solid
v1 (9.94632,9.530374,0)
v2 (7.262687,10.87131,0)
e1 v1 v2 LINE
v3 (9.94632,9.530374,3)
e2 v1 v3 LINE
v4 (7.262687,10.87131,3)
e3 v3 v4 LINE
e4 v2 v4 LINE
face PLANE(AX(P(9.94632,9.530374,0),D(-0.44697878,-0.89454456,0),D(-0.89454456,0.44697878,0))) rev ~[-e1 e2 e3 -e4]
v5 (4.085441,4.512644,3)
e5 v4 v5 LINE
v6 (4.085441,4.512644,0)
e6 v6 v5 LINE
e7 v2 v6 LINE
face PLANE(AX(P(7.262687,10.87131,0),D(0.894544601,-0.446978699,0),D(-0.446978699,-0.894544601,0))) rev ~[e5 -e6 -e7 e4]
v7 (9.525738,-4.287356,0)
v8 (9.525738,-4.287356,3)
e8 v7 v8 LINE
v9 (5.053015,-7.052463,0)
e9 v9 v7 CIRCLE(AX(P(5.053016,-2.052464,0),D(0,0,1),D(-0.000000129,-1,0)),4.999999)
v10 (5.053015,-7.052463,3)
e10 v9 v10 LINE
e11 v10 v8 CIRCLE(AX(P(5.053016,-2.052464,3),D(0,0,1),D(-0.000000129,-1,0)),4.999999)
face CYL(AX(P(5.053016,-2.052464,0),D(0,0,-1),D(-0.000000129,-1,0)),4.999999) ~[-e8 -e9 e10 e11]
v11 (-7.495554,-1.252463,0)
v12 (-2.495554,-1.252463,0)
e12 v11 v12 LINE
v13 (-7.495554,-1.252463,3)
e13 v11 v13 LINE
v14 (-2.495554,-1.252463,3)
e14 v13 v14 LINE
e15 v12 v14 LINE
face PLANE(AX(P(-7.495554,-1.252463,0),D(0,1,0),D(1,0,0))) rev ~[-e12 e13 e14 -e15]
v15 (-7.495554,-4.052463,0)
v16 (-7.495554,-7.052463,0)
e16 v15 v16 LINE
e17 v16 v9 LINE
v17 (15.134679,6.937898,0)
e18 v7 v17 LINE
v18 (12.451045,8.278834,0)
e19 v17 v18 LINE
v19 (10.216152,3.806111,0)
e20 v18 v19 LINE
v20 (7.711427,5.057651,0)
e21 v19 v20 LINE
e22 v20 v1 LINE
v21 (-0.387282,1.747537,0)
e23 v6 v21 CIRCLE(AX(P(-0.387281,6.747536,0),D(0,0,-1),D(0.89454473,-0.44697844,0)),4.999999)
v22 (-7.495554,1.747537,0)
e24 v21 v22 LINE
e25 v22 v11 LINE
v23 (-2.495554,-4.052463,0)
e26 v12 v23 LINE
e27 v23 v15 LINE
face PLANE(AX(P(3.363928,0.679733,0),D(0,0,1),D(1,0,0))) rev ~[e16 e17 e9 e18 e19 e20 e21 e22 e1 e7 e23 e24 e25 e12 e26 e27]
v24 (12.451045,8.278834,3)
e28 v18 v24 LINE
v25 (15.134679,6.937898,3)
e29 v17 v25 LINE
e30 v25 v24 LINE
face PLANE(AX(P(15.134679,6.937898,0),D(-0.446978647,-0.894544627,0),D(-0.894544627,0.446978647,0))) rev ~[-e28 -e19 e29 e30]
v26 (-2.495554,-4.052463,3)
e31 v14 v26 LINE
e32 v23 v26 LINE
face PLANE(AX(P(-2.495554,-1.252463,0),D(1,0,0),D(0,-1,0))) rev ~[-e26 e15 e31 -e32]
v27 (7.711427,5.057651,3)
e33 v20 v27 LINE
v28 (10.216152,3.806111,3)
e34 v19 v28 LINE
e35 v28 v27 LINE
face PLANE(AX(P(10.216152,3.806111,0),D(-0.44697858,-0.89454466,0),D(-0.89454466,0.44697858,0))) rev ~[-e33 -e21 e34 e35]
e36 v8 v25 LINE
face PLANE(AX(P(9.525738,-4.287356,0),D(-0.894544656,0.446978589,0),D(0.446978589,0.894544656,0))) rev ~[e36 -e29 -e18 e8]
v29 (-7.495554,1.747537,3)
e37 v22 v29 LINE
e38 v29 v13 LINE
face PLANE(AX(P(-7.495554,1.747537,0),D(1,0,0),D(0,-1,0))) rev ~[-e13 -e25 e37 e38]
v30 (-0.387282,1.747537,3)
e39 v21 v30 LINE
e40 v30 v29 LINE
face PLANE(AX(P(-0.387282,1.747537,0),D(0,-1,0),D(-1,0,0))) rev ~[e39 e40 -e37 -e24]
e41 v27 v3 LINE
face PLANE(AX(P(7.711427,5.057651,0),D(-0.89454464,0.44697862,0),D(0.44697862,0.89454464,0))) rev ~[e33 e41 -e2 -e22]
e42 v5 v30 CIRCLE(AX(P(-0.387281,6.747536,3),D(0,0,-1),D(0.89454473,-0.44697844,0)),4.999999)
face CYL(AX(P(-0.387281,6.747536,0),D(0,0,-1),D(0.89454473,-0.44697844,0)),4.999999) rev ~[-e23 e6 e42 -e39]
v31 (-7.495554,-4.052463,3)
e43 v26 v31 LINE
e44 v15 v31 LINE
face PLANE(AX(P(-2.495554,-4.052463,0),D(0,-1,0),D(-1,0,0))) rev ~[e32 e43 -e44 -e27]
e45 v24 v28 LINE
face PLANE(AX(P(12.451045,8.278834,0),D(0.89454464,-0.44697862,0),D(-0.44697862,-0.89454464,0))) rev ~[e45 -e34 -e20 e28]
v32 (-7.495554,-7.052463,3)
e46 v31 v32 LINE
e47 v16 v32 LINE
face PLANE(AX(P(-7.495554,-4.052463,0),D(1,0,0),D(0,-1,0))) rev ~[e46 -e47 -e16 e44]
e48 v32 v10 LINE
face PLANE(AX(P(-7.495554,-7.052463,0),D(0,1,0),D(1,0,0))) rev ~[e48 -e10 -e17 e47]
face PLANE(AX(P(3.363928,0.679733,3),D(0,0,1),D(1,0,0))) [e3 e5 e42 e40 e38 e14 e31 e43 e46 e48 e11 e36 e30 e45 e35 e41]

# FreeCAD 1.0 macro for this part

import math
import FreeCAD as App
import Part
import Sketcher
Q = App.Units.Quantity

doc = App.newDocument("Part")
params = doc.addObject("Spreadsheet::Sheet", "Params")
for row, (alias, value) in enumerate([
    ("sketch1_radius", "4.999999 mm"),
    ("sketch1_width", "5 mm"),
    ("sketch1_height", "3 mm"),
    ("sketch1_length", "3 mm"),
    ("sketch1_length2", "5 mm"),
    ("pad1_length", "3 mm"),
], start=1):
    params.set(f"A{row}", alias)
    params.set(f"B{row}", "=" + value)
    params.setAlias(f"B{row}", alias)

body = doc.addObject("PartDesign::Body", "Body")

# Sketch on XY plane
sketch1 = body.newObject("Sketcher::SketchObject", "Sketch")
sketch1.AttachmentSupport = (doc.getObject("XY_Plane"), [""])
sketch1.MapMode = "FlatFace"
sketch1.addGeometry([
    Part.LineSegment(App.Vector(-7.495554, -1.252463, 0), App.Vector(-2.495554, -1.252463, 0)),  # 0
    Part.LineSegment(App.Vector(-2.495554, -1.252463, 0), App.Vector(-2.495554, -4.052463, 0)),  # 1
    Part.LineSegment(App.Vector(-2.495554, -4.052463, 0), App.Vector(-7.495554, -4.052463, 0)),  # 2
    Part.LineSegment(App.Vector(-7.495554, -4.052463, 0), App.Vector(-7.495554, -7.052463, 0)),  # 3
    Part.LineSegment(App.Vector(-7.495554, -7.052463, 0), App.Vector(5.053015, -7.052463, 0)),  # 4
    Part.ArcOfCircle(Part.Circle(App.Vector(5.053016, -2.052464, 0), App.Vector(0, 0, 1), 4.999999), math.radians(-90.000007), math.radians(-26.549988)),  # 5
    Part.LineSegment(App.Vector(9.525738, -4.287356, 0), App.Vector(15.134679, 6.937898, 0)),  # 6
    Part.LineSegment(App.Vector(15.134679, 6.937898, 0), App.Vector(12.451045, 8.278834, 0)),  # 7
    Part.LineSegment(App.Vector(12.451045, 8.278834, 0), App.Vector(10.216152, 3.806111, 0)),  # 8
    Part.LineSegment(App.Vector(10.216152, 3.806111, 0), App.Vector(7.711427, 5.057651, 0)),  # 9
    Part.LineSegment(App.Vector(7.711427, 5.057651, 0), App.Vector(9.94632, 9.530374, 0)),  # 10
    Part.LineSegment(App.Vector(9.94632, 9.530374, 0), App.Vector(7.262687, 10.87131, 0)),  # 11
    Part.LineSegment(App.Vector(7.262687, 10.87131, 0), App.Vector(4.085441, 4.512644, 0)),  # 12
    Part.ArcOfCircle(Part.Circle(App.Vector(-0.387281, 6.747536, 0), App.Vector(0, 0, 1), 4.999999), math.radians(-90.000007), math.radians(-26.549988)),  # 13
    Part.LineSegment(App.Vector(-0.387282, 1.747537, 0), App.Vector(-7.495554, 1.747537, 0)),  # 14
    Part.LineSegment(App.Vector(-7.495554, 1.747537, 0), App.Vector(-7.495554, -1.252463, 0)),  # 15
], False)
sketch1.addConstraint([
    Sketcher.Constraint("Coincident", 0, 2, 1, 1),
    Sketcher.Constraint("Coincident", 1, 2, 2, 1),
    Sketcher.Constraint("Coincident", 2, 2, 3, 1),
    Sketcher.Constraint("Coincident", 3, 2, 4, 1),
    Sketcher.Constraint("Tangent", 4, 2, 5, 1),
    Sketcher.Constraint("Tangent", 5, 2, 6, 1),
    Sketcher.Constraint("Coincident", 6, 2, 7, 1),
    Sketcher.Constraint("Coincident", 7, 2, 8, 1),
    Sketcher.Constraint("Coincident", 8, 2, 9, 1),
    Sketcher.Constraint("Coincident", 9, 2, 10, 1),
    Sketcher.Constraint("Coincident", 10, 2, 11, 1),
    Sketcher.Constraint("Coincident", 11, 2, 12, 1),
    Sketcher.Constraint("Tangent", 12, 2, 13, 2),
    Sketcher.Constraint("Tangent", 13, 1, 14, 1),
    Sketcher.Constraint("Coincident", 14, 2, 15, 1),
    Sketcher.Constraint("Coincident", 15, 2, 0, 1),
    Sketcher.Constraint("Horizontal", 0),
    Sketcher.Constraint("Vertical", 1),
    Sketcher.Constraint("Horizontal", 2),
    Sketcher.Constraint("Vertical", 3),
    Sketcher.Constraint("Horizontal", 4),
    Sketcher.Constraint("Horizontal", 14),
    Sketcher.Constraint("Vertical", 15),
    Sketcher.Constraint("Equal", 5, 13),
    Sketcher.Constraint("Perpendicular", 6, 7),
    Sketcher.Constraint("Perpendicular", 7, 8),
    Sketcher.Constraint("Perpendicular", 8, 9),
    Sketcher.Constraint("Perpendicular", 9, 10),
    Sketcher.Constraint("Perpendicular", 10, 11),
    Sketcher.Constraint("Perpendicular", 11, 12),
    Sketcher.Constraint("Vertical", 3, 2, 14, 2),
    Sketcher.Constraint("Equal", 3, 15),
    Sketcher.Constraint("Equal", 8, 10),
    Sketcher.Constraint("Equal", 7, 11),
    Sketcher.Constraint("Radius", 5, Q("4.999999 mm")),
    Sketcher.Constraint("DistanceX", 0, 1, 0, 2, Q("5 mm")),
    Sketcher.Constraint("DistanceY", 3, 2, 3, 1, Q("3 mm")),
    Sketcher.Constraint("Distance", 7, Q("3 mm")),
    Sketcher.Constraint("Distance", 8, Q("5 mm")),
    Sketcher.Constraint("DistanceY", 1, 2, 1, 1, Q("2.8 mm")),
    Sketcher.Constraint("Distance", 9, Q("2.8 mm")),
    Sketcher.Constraint("Angle", 6, Q("63.450002 deg")),
    Sketcher.Constraint("DistanceX", 4, 1, 4, 2, Q("12.548569 mm")),
    Sketcher.Constraint("DistanceY", 5, 3, 7, 2, Q("10.331298 mm")),
    Sketcher.Constraint("DistanceX", 13, 3, -1, 1, Q("0.387281 mm")),
    Sketcher.Constraint("DistanceY", -1, 1, 8, 2, Q("3.806111 mm")),
])
sketch1.setExpression("Constraints[34]", "Params.sketch1_radius")
sketch1.setExpression("Constraints[35]", "Params.sketch1_width")
sketch1.setExpression("Constraints[36]", "Params.sketch1_height")
sketch1.setExpression("Constraints[37]", "Params.sketch1_length")
sketch1.setExpression("Constraints[38]", "Params.sketch1_length2")
pad1 = body.newObject("PartDesign::Pad", "Pad")
pad1.Profile = sketch1
pad1.setExpression("Length", "Params.pad1_length")

doc.recompute()
